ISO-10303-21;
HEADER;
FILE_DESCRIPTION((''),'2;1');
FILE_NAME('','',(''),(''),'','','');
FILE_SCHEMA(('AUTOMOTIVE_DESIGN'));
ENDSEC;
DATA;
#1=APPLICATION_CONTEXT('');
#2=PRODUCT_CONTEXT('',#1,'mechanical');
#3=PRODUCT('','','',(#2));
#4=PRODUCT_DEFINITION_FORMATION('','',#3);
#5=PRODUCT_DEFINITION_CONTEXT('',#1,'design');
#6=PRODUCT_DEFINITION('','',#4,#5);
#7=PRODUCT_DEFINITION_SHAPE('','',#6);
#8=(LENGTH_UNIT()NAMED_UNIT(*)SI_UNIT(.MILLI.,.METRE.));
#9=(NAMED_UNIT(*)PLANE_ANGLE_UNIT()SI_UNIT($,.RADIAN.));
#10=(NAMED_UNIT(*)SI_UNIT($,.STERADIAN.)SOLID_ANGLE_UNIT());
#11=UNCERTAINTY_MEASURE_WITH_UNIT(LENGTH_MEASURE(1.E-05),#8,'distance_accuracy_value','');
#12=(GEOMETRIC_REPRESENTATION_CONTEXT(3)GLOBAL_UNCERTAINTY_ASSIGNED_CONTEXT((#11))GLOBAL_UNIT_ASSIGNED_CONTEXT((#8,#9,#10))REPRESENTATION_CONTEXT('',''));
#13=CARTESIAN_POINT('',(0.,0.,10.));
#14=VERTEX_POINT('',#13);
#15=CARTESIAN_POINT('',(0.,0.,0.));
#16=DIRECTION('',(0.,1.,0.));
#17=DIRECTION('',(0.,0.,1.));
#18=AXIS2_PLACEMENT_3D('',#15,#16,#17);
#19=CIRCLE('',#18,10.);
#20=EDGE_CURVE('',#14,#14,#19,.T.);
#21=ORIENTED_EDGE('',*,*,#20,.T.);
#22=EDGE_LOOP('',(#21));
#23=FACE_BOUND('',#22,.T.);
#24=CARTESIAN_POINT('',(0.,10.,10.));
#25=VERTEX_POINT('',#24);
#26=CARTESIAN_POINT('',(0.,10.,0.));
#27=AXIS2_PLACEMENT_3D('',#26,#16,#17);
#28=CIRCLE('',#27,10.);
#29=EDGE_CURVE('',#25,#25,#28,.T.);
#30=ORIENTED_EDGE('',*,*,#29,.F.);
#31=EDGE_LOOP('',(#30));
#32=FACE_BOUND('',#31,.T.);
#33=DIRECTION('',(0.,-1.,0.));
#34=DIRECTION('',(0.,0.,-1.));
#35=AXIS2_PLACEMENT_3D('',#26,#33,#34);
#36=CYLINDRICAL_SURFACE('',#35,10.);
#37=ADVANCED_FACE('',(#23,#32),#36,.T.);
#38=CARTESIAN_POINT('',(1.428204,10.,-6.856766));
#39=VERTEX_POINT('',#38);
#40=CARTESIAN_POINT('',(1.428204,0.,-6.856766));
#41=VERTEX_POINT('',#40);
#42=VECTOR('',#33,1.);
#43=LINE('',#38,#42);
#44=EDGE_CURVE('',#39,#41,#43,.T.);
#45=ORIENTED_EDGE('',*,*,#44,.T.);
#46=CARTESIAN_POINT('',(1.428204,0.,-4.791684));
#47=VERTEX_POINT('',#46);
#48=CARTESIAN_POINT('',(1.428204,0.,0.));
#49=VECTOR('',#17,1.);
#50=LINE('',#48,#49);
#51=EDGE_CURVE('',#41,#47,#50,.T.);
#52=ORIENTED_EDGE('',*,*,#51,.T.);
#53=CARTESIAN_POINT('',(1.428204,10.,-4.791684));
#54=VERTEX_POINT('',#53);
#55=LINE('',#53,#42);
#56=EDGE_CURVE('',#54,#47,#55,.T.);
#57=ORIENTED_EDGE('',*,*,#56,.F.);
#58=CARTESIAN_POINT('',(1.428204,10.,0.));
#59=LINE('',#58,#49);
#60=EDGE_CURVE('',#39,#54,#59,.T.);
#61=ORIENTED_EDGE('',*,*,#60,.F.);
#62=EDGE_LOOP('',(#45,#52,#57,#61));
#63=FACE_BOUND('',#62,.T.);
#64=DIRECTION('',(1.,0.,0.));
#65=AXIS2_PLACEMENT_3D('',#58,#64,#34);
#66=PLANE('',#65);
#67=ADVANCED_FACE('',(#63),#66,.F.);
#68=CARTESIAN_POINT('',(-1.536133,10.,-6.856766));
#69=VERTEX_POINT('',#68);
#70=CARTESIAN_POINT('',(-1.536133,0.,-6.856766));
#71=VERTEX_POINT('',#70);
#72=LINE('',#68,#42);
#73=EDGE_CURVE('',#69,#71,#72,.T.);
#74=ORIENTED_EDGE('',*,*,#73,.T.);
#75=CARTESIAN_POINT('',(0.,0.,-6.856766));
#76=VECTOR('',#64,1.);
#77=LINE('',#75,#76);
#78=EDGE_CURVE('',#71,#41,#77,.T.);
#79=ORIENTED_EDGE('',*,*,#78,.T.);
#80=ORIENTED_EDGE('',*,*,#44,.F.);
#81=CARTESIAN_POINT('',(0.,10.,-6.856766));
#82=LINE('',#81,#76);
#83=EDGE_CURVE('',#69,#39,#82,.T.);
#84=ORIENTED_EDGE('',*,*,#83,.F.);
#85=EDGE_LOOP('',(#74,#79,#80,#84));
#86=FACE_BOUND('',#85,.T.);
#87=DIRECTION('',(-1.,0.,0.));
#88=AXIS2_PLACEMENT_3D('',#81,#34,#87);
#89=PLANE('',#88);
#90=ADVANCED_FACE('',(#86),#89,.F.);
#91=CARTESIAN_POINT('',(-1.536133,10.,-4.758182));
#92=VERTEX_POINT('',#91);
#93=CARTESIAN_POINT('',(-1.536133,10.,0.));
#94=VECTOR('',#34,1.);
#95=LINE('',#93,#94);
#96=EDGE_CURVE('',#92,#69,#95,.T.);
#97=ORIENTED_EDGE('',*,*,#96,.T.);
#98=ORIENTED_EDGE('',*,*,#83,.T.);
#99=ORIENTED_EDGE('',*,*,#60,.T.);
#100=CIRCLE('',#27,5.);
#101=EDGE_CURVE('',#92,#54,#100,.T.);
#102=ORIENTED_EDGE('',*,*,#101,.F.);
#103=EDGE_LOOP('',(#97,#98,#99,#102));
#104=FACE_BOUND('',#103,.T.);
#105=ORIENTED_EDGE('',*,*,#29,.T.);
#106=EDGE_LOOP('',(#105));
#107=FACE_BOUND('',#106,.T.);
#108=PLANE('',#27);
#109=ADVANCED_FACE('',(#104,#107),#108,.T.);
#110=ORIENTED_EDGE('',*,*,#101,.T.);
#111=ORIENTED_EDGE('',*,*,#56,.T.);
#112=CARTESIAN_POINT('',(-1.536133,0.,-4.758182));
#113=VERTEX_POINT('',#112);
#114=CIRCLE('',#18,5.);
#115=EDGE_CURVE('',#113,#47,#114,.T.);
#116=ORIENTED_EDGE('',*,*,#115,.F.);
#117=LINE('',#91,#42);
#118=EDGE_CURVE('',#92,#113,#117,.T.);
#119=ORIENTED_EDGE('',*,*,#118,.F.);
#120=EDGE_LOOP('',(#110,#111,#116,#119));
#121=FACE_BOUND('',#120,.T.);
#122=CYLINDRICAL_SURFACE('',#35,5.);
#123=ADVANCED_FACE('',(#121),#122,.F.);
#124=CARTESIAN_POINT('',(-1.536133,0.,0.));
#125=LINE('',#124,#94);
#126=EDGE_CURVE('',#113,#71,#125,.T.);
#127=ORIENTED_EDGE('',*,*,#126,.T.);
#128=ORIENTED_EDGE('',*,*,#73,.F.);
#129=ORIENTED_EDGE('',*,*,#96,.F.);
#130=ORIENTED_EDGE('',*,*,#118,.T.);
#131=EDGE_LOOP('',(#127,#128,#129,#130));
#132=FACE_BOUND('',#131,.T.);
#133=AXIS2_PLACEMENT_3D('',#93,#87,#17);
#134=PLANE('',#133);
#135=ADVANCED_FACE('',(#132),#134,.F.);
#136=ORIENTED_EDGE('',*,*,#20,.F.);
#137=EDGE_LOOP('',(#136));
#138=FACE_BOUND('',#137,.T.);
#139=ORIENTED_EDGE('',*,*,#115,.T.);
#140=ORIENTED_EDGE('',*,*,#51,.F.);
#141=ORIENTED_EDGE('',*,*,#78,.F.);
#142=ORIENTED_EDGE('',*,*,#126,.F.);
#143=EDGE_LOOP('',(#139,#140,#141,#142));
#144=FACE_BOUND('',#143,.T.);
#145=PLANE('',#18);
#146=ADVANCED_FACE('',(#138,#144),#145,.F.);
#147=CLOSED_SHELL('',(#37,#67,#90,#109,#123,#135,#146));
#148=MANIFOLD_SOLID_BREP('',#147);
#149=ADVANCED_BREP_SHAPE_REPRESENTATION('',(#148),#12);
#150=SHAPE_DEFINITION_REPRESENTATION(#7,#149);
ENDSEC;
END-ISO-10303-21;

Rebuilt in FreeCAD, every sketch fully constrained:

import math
import FreeCAD as App
import Part
import Sketcher

V = App.Vector

doc = App.newDocument("Part")
params = doc.addObject("Spreadsheet::Sheet", "Params")
for row, (alias, value) in enumerate([
    ("sketch1_diameter", "20 mm"),
    ("sketch1_radius", "5 mm"),
    ("pad1_length", "10 mm"),
], start=1):
    params.set(f"A{row}", alias)
    params.set(f"B{row}", "=" + value)
    params.setAlias(f"B{row}", alias)

body = doc.addObject("PartDesign::Body", "Body")

# Sketch on XZ plane
sketch1 = doc.addObject("Sketcher::SketchObject", "Sketch")
body.addObject(sketch1)
sketch1.AttachmentSupport = (doc.XZ_Plane, [""])
sketch1.MapMode = "FlatFace"
sketch1.addGeometry([
    Part.Circle(V(0, 0, 0), V(0, 0, 1), 10),  # 0
    Part.ArcOfCircle(Part.Circle(V(0, 0, 0), V(0, 0, 1), 5), math.radians(-73), math.radians(0)),  # 1
    Part.ArcOfCircle(Part.Circle(V(0, 0, 0), V(0, 0, 1), 5), math.radians(0), math.radians(252)),  # 2
    Part.LineSegment(V(-1.5, -4.8, 0), V(-1.5, -6.9, 0)),  # 3
    Part.LineSegment(V(-1.5, -6.9, 0), V(1.4, -6.9, 0)),  # 4
    Part.LineSegment(V(1.4, -6.9, 0), V(1.4, -4.8, 0)),  # 5
], False)
sketch1.addConstraint([
    Sketcher.Constraint("Tangent", 1, 2, 2, 1),
    Sketcher.Constraint("Coincident", 2, 2, 3, 1),
    Sketcher.Constraint("Coincident", 3, 2, 4, 1),
    Sketcher.Constraint("Coincident", 4, 2, 5, 1),
    Sketcher.Constraint("Coincident", 5, 2, 1, 1),
    Sketcher.Constraint("Vertical", 3),
    Sketcher.Constraint("Horizontal", 4),
    Sketcher.Constraint("Vertical", 5),
    Sketcher.Constraint("Coincident", 0, 3, -1, 1),
    Sketcher.Constraint("Coincident", 1, 3, -1, 1),
    Sketcher.Constraint("Equal", 1, 2),
    Sketcher.Constraint("PointOnObject", 1, 2, -1),
    Sketcher.Constraint("Diameter", 0, 20.0),
    Sketcher.Constraint("Radius", 1, 5.0),
    Sketcher.Constraint("DistanceY", 5, 2, 2, 2, 0.033502),
    Sketcher.Constraint("DistanceX", 4, 1, 4, 2, 2.964337),
    Sketcher.Constraint("DistanceY", 3, 2, 3, 1, 2.098584),
])
sketch1.setExpression("Constraints[12]", "Params.sketch1_diameter")
sketch1.setExpression("Constraints[13]", "Params.sketch1_radius")
pad1 = doc.addObject("PartDesign::Pad", "Pad")
body.addObject(pad1)
pad1.Profile = sketch1
pad1.setExpression("Length", "Params.pad1_length")
pad1.Reversed = True

doc.recompute()
